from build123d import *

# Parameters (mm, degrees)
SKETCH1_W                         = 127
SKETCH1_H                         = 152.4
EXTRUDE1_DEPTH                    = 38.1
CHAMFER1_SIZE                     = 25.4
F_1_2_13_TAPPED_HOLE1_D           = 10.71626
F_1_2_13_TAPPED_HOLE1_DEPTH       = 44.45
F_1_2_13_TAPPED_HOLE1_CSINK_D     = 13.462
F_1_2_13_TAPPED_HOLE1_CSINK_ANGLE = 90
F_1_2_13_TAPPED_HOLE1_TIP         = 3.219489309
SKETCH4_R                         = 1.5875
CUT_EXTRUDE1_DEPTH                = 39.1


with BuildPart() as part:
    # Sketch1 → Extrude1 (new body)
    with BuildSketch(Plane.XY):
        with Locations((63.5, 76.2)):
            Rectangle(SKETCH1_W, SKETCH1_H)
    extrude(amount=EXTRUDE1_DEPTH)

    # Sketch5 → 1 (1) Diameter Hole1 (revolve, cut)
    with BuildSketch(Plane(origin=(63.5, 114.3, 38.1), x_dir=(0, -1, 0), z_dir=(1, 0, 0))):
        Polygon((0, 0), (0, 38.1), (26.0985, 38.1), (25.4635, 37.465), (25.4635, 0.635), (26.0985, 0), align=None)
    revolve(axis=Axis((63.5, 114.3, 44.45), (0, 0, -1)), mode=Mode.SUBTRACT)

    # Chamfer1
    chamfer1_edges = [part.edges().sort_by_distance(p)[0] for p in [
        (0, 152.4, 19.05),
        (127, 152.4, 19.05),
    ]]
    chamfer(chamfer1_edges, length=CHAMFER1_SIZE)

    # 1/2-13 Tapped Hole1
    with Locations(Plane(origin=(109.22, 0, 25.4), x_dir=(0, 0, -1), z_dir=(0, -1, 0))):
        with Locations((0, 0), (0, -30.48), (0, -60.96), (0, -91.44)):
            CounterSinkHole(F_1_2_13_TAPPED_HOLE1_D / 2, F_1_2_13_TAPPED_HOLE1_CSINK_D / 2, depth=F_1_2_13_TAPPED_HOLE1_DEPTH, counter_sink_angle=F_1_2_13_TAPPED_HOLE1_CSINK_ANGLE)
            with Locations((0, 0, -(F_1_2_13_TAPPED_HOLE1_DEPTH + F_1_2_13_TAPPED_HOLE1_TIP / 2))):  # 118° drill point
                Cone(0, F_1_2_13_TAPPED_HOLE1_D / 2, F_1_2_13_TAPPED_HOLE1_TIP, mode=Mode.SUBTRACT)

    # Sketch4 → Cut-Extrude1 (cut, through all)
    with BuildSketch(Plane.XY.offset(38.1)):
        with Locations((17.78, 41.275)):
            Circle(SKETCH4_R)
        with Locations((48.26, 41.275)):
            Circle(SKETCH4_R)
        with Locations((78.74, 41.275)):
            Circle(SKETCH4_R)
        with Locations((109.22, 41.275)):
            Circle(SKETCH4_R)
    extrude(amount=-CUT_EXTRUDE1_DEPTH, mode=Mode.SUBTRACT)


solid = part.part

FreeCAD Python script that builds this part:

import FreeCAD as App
import Part
import Sketcher

V = App.Vector
Q = App.Units.Quantity


def edges_at(feature, points):
    """Names of the edges that pass closest to the given points."""
    edges = feature.Shape.Edges
    near = lambda p: min(range(len(edges)), key=lambda i: edges[i].distToShape(Part.Vertex(*p))[0])
    return sorted({f"Edge{near(p) + 1}" for p in points})

doc = App.newDocument("Part")
body = doc.addObject("PartDesign::Body", "Body")

sketch1 = doc.addObject("Sketcher::SketchObject", "Sketch")
body.addObject(sketch1)
sketch1.AttachmentSupport = (doc.XY_Plane, [""])
sketch1.MapMode = "FlatFace"
sketch1.addGeometry([
    Part.LineSegment(V(0, 152, 0), V(0, 0, 0)),
    Part.LineSegment(V(0, 0, 0), V(127, 0, 0)),
    Part.LineSegment(V(127, 0, 0), V(127, 152, 0)),
    Part.LineSegment(V(127, 152, 0), V(0, 152, 0)),
], False)
sketch1.addConstraint([
    Sketcher.Constraint("Coincident", 0, 2, 1, 1),
    Sketcher.Constraint("Coincident", 1, 2, 2, 1),
    Sketcher.Constraint("Coincident", 2, 2, 3, 1),
    Sketcher.Constraint("Coincident", 3, 2, 0, 1),
    Sketcher.Constraint("Vertical", 0),
    Sketcher.Constraint("Horizontal", 1),
    Sketcher.Constraint("Vertical", 2),
    Sketcher.Constraint("Horizontal", 3),
    Sketcher.Constraint("Coincident", 0, 2, -1, 1),
    Sketcher.Constraint("DistanceX", 1, 1, 1, 2, Q("5 in")),
    Sketcher.Constraint("DistanceY", 0, 2, 0, 1, Q("6 in")),
])
pad1 = doc.addObject("PartDesign::Pad", "Pad")
body.addObject(pad1)
pad1.Profile = sketch1
pad1.Length = Q("1.5 in")

sketch2 = doc.addObject("Sketcher::SketchObject", "Sketch001")
body.addObject(sketch2)
sketch2.AttachmentSupport = (doc.YZ_Plane, [""])
sketch2.MapMode = "FlatFace"
sketch2.AttachmentOffset = App.Placement(V(0, 0, 2.5 * 25.4), App.Rotation())
sketch2.addGeometry([
    Part.LineSegment(V(114.3, 0, 0), V(114.3, 38.1, 0)),
    Part.LineSegment(V(114.3, 38.1, 0), V(88.2, 38.1, 0)),
    Part.LineSegment(V(88.2, 38.1, 0), V(88.8, 37.5, 0)),
    Part.LineSegment(V(88.8, 37.5, 0), V(88.8, 0.6, 0)),
    Part.LineSegment(V(88.8, 0.6, 0), V(88.2, 0, 0)),
    Part.LineSegment(V(88.2, 0, 0), V(114.3, 0, 0)),
], False)
sketch2.addGeometry(Part.LineSegment(V(114.3, 38.1, 0), V(114.3, 0, 0)), True)
sketch2.addConstraint([
    Sketcher.Constraint("Coincident", 0, 2, 1, 1),
    Sketcher.Constraint("Coincident", 1, 2, 2, 1),
    Sketcher.Constraint("Coincident", 2, 2, 3, 1),
    Sketcher.Constraint("Coincident", 3, 2, 4, 1),
    Sketcher.Constraint("Coincident", 4, 2, 5, 1),
    Sketcher.Constraint("Coincident", 5, 2, 0, 1),
    Sketcher.Constraint("Vertical", 0),
    Sketcher.Constraint("Horizontal", 1),
    Sketcher.Constraint("Vertical", 3),
    Sketcher.Constraint("Horizontal", 5),
    Sketcher.Constraint("Vertical", 6),
    Sketcher.Constraint("Coincident", 6, 1, 0, 2),
    Sketcher.Constraint("PointOnObject", 4, 2, -1),
    Sketcher.Constraint("PointOnObject", 6, 2, -1),
    Sketcher.Constraint("Perpendicular", 2, 4),
    Sketcher.Constraint("Vertical", 1, 2, 4, 2),
    Sketcher.Constraint("Equal", 2, 4),
    Sketcher.Constraint("DistanceY", 0, 1, 0, 2, Q("1.5 in")),
    Sketcher.Constraint("DistanceY", 3, 2, 3, 1, Q("1.45 in")),
    Sketcher.Constraint("DistanceX", -1, 1, 0, 2, Q("4.5 in")),
    Sketcher.Constraint("DistanceX", 1, 2, 1, 1, Q("1.0275 in")),
])
groove = doc.addObject("PartDesign::Groove", "Groove")
body.addObject(groove)
groove.Profile = sketch2
groove.ReferenceAxis = (sketch2, ["Axis0"])
groove.Angle = 360
doc.recompute()

chamfer = doc.addObject("PartDesign::Chamfer", "Chamfer")
body.addObject(chamfer)
chamfer.Base = (groove, edges_at(groove, [(0, 152.4, 19.05), (127, 152.4, 19.05)]))
chamfer.Size = Q("1 in")

sketch3 = doc.addObject("Sketcher::SketchObject", "Sketch002")
body.addObject(sketch3)
sketch3.AttachmentSupport = (doc.XZ_Plane, [""])
sketch3.MapMode = "FlatFace"
sketch3.addGeometry([
    Part.Circle(V(109, 25, 0), V(0, 0, 1), 5),
    Part.Circle(V(79, 25, 0), V(0, 0, 1), 5),
    Part.Circle(V(48, 25, 0), V(0, 0, 1), 5),
    Part.Circle(V(18, 25, 0), V(0, 0, 1), 5),
], False)
sketch3.addConstraint([
    Sketcher.Constraint("Equal", 0, 1),
    Sketcher.Constraint("Equal", 1, 2),
    Sketcher.Constraint("Equal", 2, 3),
    Sketcher.Constraint("Horizontal", 0, 3, 1, 3),
    Sketcher.Constraint("Horizontal", 1, 3, 2, 3),
    Sketcher.Constraint("Horizontal", 2, 3, 3, 3),
    Sketcher.Constraint("DistanceY", -1, 1, 0, 3, Q("1 in")),
    Sketcher.Constraint("Diameter", 0, Q("0.4219 in")),
    Sketcher.Constraint("DistanceX", -1, 1, 0, 3, Q("4.3 in")),
    Sketcher.Constraint("DistanceX", -1, 1, 1, 3, Q("3.1 in")),
    Sketcher.Constraint("DistanceX", -1, 1, 2, 3, Q("1.9 in")),
    Sketcher.Constraint("DistanceX", -1, 1, 3, 3, Q("0.7 in")),
])
doc.recompute()
hole = doc.addObject("PartDesign::Hole", "Hole")
body.addObject(hole)
hole.Profile = sketch3
hole.ThreadType = "None"
hole.Diameter = Q("0.4219 in")
hole.DepthType = "Dimension"
hole.Depth = Q("1.75 in")
hole.DrillPoint = "Angled"
hole.DrillPointAngle = 118
hole.HoleCutType = "Countersink"
hole.HoleCutDiameter = Q("0.53 in")
hole.HoleCutCountersinkAngle = 90

sketch4 = doc.addObject("Sketcher::SketchObject", "Sketch003")
body.addObject(sketch4)
sketch4.AttachmentSupport = (doc.XY_Plane, [""])
sketch4.MapMode = "FlatFace"
sketch4.AttachmentOffset = App.Placement(V(0, 0, 1.5 * 25.4), App.Rotation())
sketch4.addGeometry([
    Part.Circle(V(17.8, 41.3, 0), V(0, 0, 1), 1.6),
    Part.Circle(V(48.3, 41.3, 0), V(0, 0, 1), 1.6),
    Part.Circle(V(78.7, 41.3, 0), V(0, 0, 1), 1.6),
    Part.Circle(V(109.2, 41.3, 0), V(0, 0, 1), 1.6),
], False)
sketch4.addConstraint([
    Sketcher.Constraint("Equal", 0, 1),
    Sketcher.Constraint("Equal", 1, 2),
    Sketcher.Constraint("Equal", 2, 3),
    Sketcher.Constraint("Horizontal", 0, 3, 1, 3),
    Sketcher.Constraint("Horizontal", 1, 3, 2, 3),
    Sketcher.Constraint("Horizontal", 2, 3, 3, 3),
    Sketcher.Constraint("Diameter", 0, Q("0.125 in")),
    Sketcher.Constraint("DistanceX", -1, 1, 0, 3, Q("0.7 in")),
    Sketcher.Constraint("DistanceX", -1, 1, 1, 3, Q("1.9 in")),
    Sketcher.Constraint("DistanceX", -1, 1, 2, 3, Q("3.1 in")),
    Sketcher.Constraint("DistanceX", -1, 1, 3, 3, Q("4.3 in")),
    Sketcher.Constraint("DistanceY", -1, 1, 0, 3, Q("1.625 in")),
])
pocket1 = doc.addObject("PartDesign::Pocket", "Pocket")
body.addObject(pocket1)
pocket1.Profile = sketch4
pocket1.Type = "ThroughAll"

doc.recompute()
